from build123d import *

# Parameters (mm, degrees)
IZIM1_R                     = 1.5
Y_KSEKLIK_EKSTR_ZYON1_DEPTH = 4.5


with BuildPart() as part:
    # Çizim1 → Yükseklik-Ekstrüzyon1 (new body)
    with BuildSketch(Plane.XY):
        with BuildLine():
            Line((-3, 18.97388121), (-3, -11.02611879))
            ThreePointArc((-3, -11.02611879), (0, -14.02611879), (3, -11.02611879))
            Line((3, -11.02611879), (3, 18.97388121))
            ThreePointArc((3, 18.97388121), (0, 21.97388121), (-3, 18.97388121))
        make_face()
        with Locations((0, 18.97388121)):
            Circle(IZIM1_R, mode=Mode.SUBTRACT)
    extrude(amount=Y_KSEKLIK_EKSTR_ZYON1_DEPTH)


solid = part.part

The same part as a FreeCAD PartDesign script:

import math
import FreeCAD as App
import Part
import Sketcher

doc = App.newDocument("Part")
body = doc.addObject("PartDesign::Body", "Body")

sketch1 = body.newObject("Sketcher::SketchObject", "Sketch")
sketch1.AttachmentSupport = (doc.getObject("XY_Plane"), [""])
sketch1.MapMode = "FlatFace"
sketch1.addGeometry(Part.LineSegment(App.Vector(-3, 19, 0), App.Vector(-3, -11, 0)), False)
sketch1.addGeometry(Part.ArcOfCircle(Part.Circle(App.Vector(0, -11, 0), App.Vector(0, 0, 1), 3), math.radians(180), math.radians(360)), False)
sketch1.addGeometry(Part.LineSegment(App.Vector(3, -11, 0), App.Vector(3, 19, 0)), False)
sketch1.addGeometry(Part.ArcOfCircle(Part.Circle(App.Vector(0, 19, 0), App.Vector(0, 0, 1), 3), math.radians(0), math.radians(180)), False)
sketch1.addGeometry(Part.Circle(App.Vector(0, 19, 0), App.Vector(0, 0, 1), 1.5), False)
sketch1.addConstraint(Sketcher.Constraint("Tangent", 0, 2, 1, 1))
sketch1.addConstraint(Sketcher.Constraint("Tangent", 1, 2, 2, 1))
sketch1.addConstraint(Sketcher.Constraint("Tangent", 2, 2, 3, 1))
sketch1.addConstraint(Sketcher.Constraint("Tangent", 3, 2, 0, 1))
sketch1.addConstraint(Sketcher.Constraint("Vertical", 0))
sketch1.addConstraint(Sketcher.Constraint("Vertical", 2))
sketch1.addConstraint(Sketcher.Constraint("Coincident", 4, 3, 3, 3))
sketch1.addConstraint(Sketcher.Constraint("PointOnObject", 1, 3, -2))
sketch1.addConstraint(Sketcher.Constraint("Diameter", 4, 3.0))
sketch1.addConstraint(Sketcher.Constraint("Radius", 1, 3.0))
sketch1.addConstraint(Sketcher.Constraint("DistanceY", 0, 2, 0, 1, 30.0))
sketch1.addConstraint(Sketcher.Constraint("DistanceY", 1, 3, -1, 1, 11.026119))
pad1 = body.newObject("PartDesign::Pad", "Pad")
pad1.Profile = sketch1
pad1.Length = 4.5

doc.recompute()
